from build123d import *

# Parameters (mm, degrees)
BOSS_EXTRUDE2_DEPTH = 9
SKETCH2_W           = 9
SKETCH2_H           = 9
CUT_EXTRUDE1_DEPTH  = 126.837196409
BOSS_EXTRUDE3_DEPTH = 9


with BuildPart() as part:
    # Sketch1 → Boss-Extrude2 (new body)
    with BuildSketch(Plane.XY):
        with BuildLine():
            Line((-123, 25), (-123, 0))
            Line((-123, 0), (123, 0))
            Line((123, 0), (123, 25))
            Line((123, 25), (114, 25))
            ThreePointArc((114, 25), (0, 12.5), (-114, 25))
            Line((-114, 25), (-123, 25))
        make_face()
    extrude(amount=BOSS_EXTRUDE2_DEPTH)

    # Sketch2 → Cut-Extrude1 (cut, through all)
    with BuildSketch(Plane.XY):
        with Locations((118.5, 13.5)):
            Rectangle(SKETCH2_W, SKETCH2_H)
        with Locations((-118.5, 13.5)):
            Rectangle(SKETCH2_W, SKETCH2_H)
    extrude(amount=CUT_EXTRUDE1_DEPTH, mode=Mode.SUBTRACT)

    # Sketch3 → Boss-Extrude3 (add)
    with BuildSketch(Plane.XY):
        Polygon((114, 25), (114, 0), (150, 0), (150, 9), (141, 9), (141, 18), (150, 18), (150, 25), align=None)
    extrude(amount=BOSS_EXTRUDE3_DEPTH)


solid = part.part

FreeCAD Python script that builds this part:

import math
import FreeCAD as App
import Part
import Sketcher

V = App.Vector
Q = App.Units.Quantity


def add_polygon(sketch, points):
    """Adds a closed chain of lines whose ends are joined by coincident constraints."""
    first, n = sketch.GeometryCount, len(points)
    for a, b in zip(points, points[1:] + points[:1]):
        sketch.addGeometry(Part.LineSegment(App.Vector(*a, 0), App.Vector(*b, 0)), False)
    for i in range(n):
        sketch.addConstraint(Sketcher.Constraint("Coincident", first + i, 2, first + (i + 1) % n, 1))

doc = App.newDocument("Part")
body = doc.addObject("PartDesign::Body", "Body")

# Sketch on XY plane
sketch1 = doc.addObject("Sketcher::SketchObject", "Sketch")
body.addObject(sketch1)
sketch1.AttachmentSupport = (doc.XY_Plane, [""])
sketch1.MapMode = "FlatFace"
sketch1.addGeometry(Part.LineSegment(V(-123, 25, 0), V(-123, 0, 0)), False)
sketch1.addGeometry(Part.LineSegment(V(-123, 0, 0), V(123, 0, 0)), False)
sketch1.addGeometry(Part.LineSegment(V(123, 0, 0), V(123, 25, 0)), False)
sketch1.addGeometry(Part.LineSegment(V(123, 25, 0), V(114, 25, 0)), False)
sketch1.addGeometry(Part.ArcOfCircle(Part.Circle(V(0, 538.59, 0), V(0, 0, 1), 526.09), math.radians(-102.514869), math.radians(-77.485131)), False)
sketch1.addGeometry(Part.LineSegment(V(-114, 25, 0), V(-123, 25, 0)), False)
sketch1.addConstraint(Sketcher.Constraint("Coincident", 0, 2, 1, 1))
sketch1.addConstraint(Sketcher.Constraint("Coincident", 1, 2, 2, 1))
sketch1.addConstraint(Sketcher.Constraint("Coincident", 2, 2, 3, 1))
sketch1.addConstraint(Sketcher.Constraint("Coincident", 3, 2, 4, 2))
sketch1.addConstraint(Sketcher.Constraint("Coincident", 4, 1, 5, 1))
sketch1.addConstraint(Sketcher.Constraint("Coincident", 5, 2, 0, 1))
sketch1.addConstraint(Sketcher.Constraint("Vertical", 0))
sketch1.addConstraint(Sketcher.Constraint("Horizontal", 1))
sketch1.addConstraint(Sketcher.Constraint("Vertical", 2))
sketch1.addConstraint(Sketcher.Constraint("Horizontal", 3))
sketch1.addConstraint(Sketcher.Constraint("Horizontal", 5))
sketch1.addConstraint(Sketcher.Constraint("Symmetric", 0, 2, 1, 2, -1, 1))
sketch1.addConstraint(Sketcher.Constraint("Symmetric", 3, 2, 4, 1, -2))
sketch1.addConstraint(Sketcher.Constraint("DistanceX", 1, 1, 1, 2, Q("246 mm")))
sketch1.addConstraint(Sketcher.Constraint("DistanceX", 3, 2, 3, 1, Q("9 mm")))
sketch1.addConstraint(Sketcher.Constraint("DistanceY", 0, 2, 0, 1, Q("25 mm")))
sketch1.addConstraint(Sketcher.Constraint("Radius", 4, Q("526.09 mm")))
pad1 = doc.addObject("PartDesign::Pad", "Pad")
body.addObject(pad1)
pad1.Profile = sketch1
pad1.Length = 9

# Sketch on XY plane
sketch2 = doc.addObject("Sketcher::SketchObject", "Sketch001")
body.addObject(sketch2)
sketch2.AttachmentSupport = (doc.XY_Plane, [""])
sketch2.MapMode = "FlatFace"
add_polygon(sketch2, [(114, 18), (114, 9), (123, 9), (123, 18)])  # lines 0-3
add_polygon(sketch2, [(-123, 18), (-123, 9), (-114, 9), (-114, 18)])  # lines 4-7
sketch2.addConstraint(Sketcher.Constraint("Vertical", 0))
sketch2.addConstraint(Sketcher.Constraint("Horizontal", 1))
sketch2.addConstraint(Sketcher.Constraint("Vertical", 2))
sketch2.addConstraint(Sketcher.Constraint("Horizontal", 3))
sketch2.addConstraint(Sketcher.Constraint("Vertical", 4))
sketch2.addConstraint(Sketcher.Constraint("Horizontal", 5))
sketch2.addConstraint(Sketcher.Constraint("Vertical", 6))
sketch2.addConstraint(Sketcher.Constraint("Horizontal", 7))
sketch2.addConstraint(Sketcher.Constraint("Symmetric", 1, 2, 4, 2, -2))
sketch2.addConstraint(Sketcher.Constraint("Symmetric", 3, 2, 6, 2, -2))
sketch2.addConstraint(Sketcher.Constraint("Equal", 7, 0))
sketch2.addConstraint(Sketcher.Constraint("DistanceX", 1, 1, 1, 2, Q("9 mm")))
sketch2.addConstraint(Sketcher.Constraint("DistanceX", -1, 1, 0, 2, Q("114 mm")))
sketch2.addConstraint(Sketcher.Constraint("DistanceY", -1, 1, 0, 2, Q("9 mm")))
pocket1 = doc.addObject("PartDesign::Pocket", "Pocket")
body.addObject(pocket1)
pocket1.Profile = sketch2
pocket1.Type = "ThroughAll"
pocket1.Reversed = True

# Sketch on XY plane
sketch3 = doc.addObject("Sketcher::SketchObject", "Sketch002")
body.addObject(sketch3)
sketch3.AttachmentSupport = (doc.XY_Plane, [""])
sketch3.MapMode = "FlatFace"
add_polygon(sketch3, [(114, 25), (114, 0), (150, 0), (150, 9), (141, 9), (141, 18), (150, 18), (150, 25)])  # lines 0-7
sketch3.addConstraint(Sketcher.Constraint("Vertical", 0))
sketch3.addConstraint(Sketcher.Constraint("Horizontal", 1))
sketch3.addConstraint(Sketcher.Constraint("Vertical", 2))
sketch3.addConstraint(Sketcher.Constraint("Horizontal", 3))
sketch3.addConstraint(Sketcher.Constraint("Vertical", 4))
sketch3.addConstraint(Sketcher.Constraint("Horizontal", 5))
sketch3.addConstraint(Sketcher.Constraint("Vertical", 6))
sketch3.addConstraint(Sketcher.Constraint("Horizontal", 7))
sketch3.addConstraint(Sketcher.Constraint("PointOnObject", 0, 2, -1))
sketch3.addConstraint(Sketcher.Constraint("Vertical", 2, 2, 5, 2))
sketch3.addConstraint(Sketcher.Constraint("Equal", 5, 2))
sketch3.addConstraint(Sketcher.Constraint("Equal", 2, 4))
sketch3.addConstraint(Sketcher.Constraint("DistanceX", 1, 1, 1, 2, Q("36 mm")))
sketch3.addConstraint(Sketcher.Constraint("DistanceX", 3, 2, 3, 1, Q("9 mm")))
sketch3.addConstraint(Sketcher.Constraint("DistanceY", 0, 2, 0, 1, Q("25 mm")))
sketch3.addConstraint(Sketcher.Constraint("DistanceX", -1, 1, 0, 2, Q("114 mm")))
pad2 = doc.addObject("PartDesign::Pad", "Pad001")
body.addObject(pad2)
pad2.Profile = sketch3
pad2.Length = 9

doc.recompute()
